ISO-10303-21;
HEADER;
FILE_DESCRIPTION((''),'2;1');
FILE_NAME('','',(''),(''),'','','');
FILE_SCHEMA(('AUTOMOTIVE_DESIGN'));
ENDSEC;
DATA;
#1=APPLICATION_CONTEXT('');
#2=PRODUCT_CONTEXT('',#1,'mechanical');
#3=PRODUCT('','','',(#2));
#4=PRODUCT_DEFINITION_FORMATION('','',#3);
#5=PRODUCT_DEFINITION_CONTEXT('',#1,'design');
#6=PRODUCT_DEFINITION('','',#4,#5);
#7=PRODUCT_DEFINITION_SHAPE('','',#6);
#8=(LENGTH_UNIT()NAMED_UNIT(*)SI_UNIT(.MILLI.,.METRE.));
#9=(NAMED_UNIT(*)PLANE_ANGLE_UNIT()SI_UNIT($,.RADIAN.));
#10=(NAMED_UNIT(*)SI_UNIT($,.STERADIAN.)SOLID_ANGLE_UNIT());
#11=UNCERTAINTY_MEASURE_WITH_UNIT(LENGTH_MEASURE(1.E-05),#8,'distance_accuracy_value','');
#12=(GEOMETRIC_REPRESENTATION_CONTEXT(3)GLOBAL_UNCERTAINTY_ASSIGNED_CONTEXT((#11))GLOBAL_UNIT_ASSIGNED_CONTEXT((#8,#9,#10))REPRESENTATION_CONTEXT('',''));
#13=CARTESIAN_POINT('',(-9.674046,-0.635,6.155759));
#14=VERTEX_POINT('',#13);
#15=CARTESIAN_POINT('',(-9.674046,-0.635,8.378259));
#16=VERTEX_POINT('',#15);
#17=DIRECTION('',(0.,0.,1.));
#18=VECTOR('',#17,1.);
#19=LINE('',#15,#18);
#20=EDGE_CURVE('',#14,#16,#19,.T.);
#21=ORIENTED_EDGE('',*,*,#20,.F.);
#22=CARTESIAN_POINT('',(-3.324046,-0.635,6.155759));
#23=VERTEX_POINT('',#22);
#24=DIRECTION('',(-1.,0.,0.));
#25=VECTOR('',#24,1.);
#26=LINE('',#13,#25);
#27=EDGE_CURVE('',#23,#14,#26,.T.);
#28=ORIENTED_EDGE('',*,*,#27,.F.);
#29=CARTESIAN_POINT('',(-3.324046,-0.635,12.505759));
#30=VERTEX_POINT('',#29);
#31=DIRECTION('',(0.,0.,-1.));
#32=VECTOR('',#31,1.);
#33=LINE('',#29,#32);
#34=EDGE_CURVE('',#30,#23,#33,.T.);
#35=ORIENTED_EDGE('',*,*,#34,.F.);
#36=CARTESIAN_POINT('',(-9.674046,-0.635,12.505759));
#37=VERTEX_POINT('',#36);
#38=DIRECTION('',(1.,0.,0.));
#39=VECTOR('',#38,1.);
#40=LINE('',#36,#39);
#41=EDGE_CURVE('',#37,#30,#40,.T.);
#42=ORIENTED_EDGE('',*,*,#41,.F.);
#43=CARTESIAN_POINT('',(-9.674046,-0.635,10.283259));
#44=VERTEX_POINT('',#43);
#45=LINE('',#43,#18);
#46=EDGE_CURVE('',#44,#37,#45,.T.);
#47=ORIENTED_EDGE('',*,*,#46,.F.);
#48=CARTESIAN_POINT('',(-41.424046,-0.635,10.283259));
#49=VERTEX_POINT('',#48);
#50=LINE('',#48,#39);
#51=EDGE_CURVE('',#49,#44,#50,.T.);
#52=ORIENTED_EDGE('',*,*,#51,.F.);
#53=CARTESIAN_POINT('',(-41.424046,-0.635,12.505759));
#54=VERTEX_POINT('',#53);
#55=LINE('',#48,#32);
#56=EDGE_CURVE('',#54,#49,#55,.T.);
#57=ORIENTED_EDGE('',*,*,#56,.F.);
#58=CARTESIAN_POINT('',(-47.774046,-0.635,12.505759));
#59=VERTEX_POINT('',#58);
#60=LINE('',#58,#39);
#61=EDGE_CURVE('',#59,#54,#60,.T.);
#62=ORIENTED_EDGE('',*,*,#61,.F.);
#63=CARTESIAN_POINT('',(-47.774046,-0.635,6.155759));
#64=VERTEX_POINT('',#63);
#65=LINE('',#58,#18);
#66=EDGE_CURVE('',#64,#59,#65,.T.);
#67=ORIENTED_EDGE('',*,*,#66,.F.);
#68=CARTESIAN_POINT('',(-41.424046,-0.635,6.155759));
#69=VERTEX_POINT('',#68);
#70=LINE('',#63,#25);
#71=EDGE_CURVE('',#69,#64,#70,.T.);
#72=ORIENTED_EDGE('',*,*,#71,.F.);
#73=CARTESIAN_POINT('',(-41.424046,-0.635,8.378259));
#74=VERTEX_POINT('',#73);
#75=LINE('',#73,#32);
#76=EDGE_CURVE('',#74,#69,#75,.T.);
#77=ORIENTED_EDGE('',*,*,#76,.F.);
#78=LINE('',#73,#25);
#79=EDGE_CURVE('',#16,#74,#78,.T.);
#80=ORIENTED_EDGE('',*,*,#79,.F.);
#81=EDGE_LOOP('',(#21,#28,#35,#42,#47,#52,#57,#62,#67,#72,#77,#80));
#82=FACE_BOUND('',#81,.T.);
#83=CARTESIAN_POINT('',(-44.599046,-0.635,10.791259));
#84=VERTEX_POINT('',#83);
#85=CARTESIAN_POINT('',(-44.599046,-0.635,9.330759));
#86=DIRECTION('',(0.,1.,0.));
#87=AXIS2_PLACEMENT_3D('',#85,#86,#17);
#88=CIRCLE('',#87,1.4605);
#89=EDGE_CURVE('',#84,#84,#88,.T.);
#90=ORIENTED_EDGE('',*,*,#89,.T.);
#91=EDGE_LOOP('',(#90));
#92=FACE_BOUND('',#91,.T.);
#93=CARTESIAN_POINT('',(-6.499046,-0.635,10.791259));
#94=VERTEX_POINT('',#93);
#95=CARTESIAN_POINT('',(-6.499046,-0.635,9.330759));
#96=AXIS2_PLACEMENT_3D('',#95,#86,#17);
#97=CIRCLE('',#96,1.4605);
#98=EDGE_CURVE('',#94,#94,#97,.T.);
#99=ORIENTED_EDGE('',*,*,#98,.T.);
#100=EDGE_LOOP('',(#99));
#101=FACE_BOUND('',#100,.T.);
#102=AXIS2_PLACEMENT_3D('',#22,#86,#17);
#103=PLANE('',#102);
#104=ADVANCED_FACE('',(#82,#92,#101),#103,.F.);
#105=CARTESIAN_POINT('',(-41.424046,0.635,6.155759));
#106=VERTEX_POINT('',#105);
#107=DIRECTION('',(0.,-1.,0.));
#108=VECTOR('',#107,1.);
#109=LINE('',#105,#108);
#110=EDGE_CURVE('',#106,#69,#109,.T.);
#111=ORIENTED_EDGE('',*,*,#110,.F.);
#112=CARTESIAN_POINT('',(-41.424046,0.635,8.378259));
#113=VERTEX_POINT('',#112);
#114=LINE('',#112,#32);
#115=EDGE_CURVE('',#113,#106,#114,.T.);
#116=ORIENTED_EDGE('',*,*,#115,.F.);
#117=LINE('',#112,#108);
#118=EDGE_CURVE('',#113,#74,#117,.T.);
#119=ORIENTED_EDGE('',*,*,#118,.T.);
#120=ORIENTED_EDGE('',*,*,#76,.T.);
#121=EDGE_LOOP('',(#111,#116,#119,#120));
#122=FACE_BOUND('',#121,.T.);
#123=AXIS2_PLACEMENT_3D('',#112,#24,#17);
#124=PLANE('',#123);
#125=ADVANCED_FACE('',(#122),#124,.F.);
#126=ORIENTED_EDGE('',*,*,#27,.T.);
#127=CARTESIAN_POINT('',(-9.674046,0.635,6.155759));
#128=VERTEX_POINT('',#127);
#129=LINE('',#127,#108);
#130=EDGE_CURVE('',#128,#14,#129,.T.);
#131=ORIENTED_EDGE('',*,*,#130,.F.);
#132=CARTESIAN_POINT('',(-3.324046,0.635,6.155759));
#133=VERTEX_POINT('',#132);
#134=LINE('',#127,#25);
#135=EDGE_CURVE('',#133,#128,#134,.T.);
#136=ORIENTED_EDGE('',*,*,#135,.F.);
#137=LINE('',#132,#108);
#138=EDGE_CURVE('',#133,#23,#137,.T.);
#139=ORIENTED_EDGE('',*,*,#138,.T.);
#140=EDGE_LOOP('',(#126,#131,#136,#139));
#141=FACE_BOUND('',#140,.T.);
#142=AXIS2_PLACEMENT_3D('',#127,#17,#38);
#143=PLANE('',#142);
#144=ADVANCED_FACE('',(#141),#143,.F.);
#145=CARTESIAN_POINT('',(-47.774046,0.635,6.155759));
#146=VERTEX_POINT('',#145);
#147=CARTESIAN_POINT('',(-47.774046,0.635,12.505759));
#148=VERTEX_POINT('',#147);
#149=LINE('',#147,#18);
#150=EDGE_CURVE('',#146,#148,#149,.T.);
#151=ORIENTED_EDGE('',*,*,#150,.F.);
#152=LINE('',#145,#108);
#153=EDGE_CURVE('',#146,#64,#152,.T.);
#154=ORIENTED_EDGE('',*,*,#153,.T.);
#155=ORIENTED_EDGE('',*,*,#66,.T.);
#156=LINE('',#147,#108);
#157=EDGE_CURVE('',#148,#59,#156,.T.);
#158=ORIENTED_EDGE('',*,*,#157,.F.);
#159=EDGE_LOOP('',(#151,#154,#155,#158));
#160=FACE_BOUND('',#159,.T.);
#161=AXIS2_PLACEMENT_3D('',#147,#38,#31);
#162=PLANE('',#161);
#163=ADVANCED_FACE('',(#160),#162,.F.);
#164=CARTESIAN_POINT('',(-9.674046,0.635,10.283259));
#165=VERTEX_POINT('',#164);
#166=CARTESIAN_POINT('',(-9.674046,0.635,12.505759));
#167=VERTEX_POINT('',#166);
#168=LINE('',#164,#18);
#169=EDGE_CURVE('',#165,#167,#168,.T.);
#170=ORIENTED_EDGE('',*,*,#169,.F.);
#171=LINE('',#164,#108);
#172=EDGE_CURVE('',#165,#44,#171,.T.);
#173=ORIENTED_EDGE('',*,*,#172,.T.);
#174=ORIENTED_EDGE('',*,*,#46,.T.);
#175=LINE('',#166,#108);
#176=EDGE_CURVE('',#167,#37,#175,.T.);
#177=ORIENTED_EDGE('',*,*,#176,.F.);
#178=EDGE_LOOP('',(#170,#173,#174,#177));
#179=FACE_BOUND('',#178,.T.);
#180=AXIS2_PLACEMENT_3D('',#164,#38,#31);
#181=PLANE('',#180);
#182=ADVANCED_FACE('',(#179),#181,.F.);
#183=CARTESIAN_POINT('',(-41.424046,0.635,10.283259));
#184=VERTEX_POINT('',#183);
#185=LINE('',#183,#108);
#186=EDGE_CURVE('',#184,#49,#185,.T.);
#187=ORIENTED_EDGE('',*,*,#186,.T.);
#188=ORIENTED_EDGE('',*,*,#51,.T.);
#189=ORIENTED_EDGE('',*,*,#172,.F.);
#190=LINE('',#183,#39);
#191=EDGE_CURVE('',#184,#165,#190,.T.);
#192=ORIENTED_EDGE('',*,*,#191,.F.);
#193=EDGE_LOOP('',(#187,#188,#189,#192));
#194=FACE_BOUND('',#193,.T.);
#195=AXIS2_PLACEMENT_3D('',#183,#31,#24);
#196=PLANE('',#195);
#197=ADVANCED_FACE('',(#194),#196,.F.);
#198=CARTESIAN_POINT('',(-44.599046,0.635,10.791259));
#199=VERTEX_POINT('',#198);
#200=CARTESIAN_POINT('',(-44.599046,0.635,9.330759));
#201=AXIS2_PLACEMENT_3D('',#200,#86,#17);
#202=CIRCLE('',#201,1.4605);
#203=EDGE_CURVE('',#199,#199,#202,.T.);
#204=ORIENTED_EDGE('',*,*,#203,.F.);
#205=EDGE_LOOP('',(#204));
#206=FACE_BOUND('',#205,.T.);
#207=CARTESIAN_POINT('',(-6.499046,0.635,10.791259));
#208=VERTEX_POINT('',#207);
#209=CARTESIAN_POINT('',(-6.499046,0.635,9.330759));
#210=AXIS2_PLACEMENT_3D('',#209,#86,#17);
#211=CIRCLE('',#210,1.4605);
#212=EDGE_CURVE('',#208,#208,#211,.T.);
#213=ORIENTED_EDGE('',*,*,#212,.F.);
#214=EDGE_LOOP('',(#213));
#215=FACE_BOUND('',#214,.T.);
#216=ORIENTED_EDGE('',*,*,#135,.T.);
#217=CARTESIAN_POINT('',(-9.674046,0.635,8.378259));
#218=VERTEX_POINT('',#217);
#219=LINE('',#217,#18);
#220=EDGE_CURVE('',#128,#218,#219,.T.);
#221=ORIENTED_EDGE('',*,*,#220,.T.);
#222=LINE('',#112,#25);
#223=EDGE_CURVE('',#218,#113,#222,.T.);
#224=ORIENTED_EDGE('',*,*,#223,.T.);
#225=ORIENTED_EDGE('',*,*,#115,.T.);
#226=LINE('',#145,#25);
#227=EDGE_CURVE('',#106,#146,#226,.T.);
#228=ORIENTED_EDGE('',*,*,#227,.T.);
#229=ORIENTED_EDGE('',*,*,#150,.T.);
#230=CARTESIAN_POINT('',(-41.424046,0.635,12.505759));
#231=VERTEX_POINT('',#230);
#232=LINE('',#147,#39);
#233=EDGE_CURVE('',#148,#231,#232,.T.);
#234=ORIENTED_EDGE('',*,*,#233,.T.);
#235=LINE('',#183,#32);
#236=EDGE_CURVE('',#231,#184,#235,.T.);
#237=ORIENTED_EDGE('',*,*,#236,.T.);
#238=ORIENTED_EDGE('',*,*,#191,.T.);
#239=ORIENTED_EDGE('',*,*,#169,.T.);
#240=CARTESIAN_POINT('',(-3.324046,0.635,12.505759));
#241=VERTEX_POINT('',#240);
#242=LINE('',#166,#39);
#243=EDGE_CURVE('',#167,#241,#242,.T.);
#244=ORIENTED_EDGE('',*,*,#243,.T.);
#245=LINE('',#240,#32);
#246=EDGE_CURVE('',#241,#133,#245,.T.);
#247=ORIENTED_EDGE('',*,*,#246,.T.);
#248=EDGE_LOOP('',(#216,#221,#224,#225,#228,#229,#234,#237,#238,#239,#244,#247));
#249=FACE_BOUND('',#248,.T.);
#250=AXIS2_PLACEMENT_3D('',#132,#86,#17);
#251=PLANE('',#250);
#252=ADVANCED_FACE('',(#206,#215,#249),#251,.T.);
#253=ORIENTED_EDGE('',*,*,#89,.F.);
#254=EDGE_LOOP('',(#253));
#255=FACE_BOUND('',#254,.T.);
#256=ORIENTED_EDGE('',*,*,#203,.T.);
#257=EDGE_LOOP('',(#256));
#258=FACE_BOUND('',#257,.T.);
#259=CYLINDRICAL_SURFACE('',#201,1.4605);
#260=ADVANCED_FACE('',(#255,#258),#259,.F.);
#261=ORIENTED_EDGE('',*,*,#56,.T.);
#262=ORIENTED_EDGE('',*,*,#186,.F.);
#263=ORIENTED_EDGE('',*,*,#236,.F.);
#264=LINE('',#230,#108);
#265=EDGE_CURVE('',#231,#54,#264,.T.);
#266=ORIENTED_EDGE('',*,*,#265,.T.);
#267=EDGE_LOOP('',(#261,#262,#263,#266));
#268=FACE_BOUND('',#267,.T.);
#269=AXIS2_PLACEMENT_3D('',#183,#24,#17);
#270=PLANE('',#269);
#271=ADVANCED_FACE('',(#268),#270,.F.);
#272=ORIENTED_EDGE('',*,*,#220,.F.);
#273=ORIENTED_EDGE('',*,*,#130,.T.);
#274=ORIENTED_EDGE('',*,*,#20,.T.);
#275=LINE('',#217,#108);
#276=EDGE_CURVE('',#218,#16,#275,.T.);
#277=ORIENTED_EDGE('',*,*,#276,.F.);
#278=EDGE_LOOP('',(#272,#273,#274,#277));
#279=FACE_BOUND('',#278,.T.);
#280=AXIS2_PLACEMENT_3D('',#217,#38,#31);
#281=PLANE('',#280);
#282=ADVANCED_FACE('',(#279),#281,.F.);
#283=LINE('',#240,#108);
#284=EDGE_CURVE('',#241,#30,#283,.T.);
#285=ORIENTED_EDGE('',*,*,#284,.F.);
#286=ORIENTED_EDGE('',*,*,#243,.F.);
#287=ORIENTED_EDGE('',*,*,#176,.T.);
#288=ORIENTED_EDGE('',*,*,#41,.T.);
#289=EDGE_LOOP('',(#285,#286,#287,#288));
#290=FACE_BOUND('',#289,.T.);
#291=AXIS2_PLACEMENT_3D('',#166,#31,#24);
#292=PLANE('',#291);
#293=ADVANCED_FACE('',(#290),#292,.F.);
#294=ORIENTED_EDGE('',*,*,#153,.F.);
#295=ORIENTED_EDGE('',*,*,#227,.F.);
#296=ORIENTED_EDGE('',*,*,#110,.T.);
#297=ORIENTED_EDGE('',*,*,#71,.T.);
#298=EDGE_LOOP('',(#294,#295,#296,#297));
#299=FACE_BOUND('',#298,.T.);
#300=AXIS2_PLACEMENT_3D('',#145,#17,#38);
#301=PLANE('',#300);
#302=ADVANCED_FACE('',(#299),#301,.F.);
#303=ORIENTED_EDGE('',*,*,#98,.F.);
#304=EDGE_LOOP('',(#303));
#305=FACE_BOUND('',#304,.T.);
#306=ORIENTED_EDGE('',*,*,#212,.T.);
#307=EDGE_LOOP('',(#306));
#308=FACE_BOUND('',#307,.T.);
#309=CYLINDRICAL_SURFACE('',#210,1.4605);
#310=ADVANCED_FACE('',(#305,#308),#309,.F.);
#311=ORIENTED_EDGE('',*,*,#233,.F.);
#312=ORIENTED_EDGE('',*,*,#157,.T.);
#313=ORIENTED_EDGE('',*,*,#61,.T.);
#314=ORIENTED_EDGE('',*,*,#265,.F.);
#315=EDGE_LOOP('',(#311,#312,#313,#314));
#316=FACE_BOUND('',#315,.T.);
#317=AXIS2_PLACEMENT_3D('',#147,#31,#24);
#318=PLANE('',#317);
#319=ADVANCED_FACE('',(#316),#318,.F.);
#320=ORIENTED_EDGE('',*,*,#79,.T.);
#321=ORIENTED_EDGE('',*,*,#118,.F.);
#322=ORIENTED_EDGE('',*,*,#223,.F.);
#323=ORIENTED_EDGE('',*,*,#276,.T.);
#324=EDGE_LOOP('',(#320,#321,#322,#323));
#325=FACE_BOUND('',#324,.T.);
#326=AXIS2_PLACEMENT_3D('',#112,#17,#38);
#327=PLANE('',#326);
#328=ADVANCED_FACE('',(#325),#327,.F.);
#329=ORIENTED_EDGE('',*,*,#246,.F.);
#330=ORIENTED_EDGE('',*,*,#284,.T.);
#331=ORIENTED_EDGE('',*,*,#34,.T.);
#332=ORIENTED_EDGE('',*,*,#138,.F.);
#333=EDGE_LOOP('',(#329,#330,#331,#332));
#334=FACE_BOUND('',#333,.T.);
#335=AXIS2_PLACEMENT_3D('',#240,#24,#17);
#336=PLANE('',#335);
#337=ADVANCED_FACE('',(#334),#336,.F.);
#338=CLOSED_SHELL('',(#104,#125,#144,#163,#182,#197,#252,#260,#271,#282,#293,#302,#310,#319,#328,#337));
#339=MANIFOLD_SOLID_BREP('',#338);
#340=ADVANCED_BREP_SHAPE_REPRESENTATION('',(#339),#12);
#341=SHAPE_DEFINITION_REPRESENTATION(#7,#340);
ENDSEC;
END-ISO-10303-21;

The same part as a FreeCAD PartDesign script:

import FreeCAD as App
import Part
import Sketcher
Q = App.Units.Quantity

doc = App.newDocument("Part")
params = doc.addObject("Spreadsheet::Sheet", "Params")
for row, (alias, value) in enumerate([
    ("sketch1_width", "1.25 in"),
    ("sketch1_width2", "0.25 in"),
    ("pad1_length", "0.05 in"),
    ("sketch2_diameter", "0.115 in"),
    ("hole_diameter", "0.115 in"),
], start=1):
    params.set(f"A{row}", alias)
    params.set(f"B{row}", "=" + value)
    params.setAlias(f"B{row}", alias)

body = doc.addObject("PartDesign::Body", "Body")

# Sketch on XZ plane
sketch1 = body.newObject("Sketcher::SketchObject", "Sketch")
sketch1.AttachmentSupport = (doc.getObject("XZ_Plane"), [""])
sketch1.MapMode = "FlatFace"
sketch1.addGeometry(Part.LineSegment(App.Vector(-41.4, 12.5, 0), App.Vector(-41.4, 10.3, 0)), False)
sketch1.addGeometry(Part.LineSegment(App.Vector(-41.4, 10.3, 0), App.Vector(-9.7, 10.3, 0)), False)
sketch1.addGeometry(Part.LineSegment(App.Vector(-9.7, 10.3, 0), App.Vector(-9.7, 12.5, 0)), False)
sketch1.addGeometry(Part.LineSegment(App.Vector(-9.7, 12.5, 0), App.Vector(-3.3, 12.5, 0)), False)
sketch1.addGeometry(Part.LineSegment(App.Vector(-3.3, 12.5, 0), App.Vector(-3.3, 6.2, 0)), False)
sketch1.addGeometry(Part.LineSegment(App.Vector(-3.3, 6.2, 0), App.Vector(-9.7, 6.2, 0)), False)
sketch1.addGeometry(Part.LineSegment(App.Vector(-9.7, 6.2, 0), App.Vector(-9.7, 8.4, 0)), False)
sketch1.addGeometry(Part.LineSegment(App.Vector(-9.7, 8.4, 0), App.Vector(-41.4, 8.4, 0)), False)
sketch1.addGeometry(Part.LineSegment(App.Vector(-41.4, 8.4, 0), App.Vector(-41.4, 6.2, 0)), False)
sketch1.addGeometry(Part.LineSegment(App.Vector(-41.4, 6.2, 0), App.Vector(-47.8, 6.2, 0)), False)
sketch1.addGeometry(Part.LineSegment(App.Vector(-47.8, 6.2, 0), App.Vector(-47.8, 12.5, 0)), False)
sketch1.addGeometry(Part.LineSegment(App.Vector(-47.8, 12.5, 0), App.Vector(-41.4, 12.5, 0)), False)
sketch1.addConstraint(Sketcher.Constraint("Coincident", 0, 2, 1, 1))
sketch1.addConstraint(Sketcher.Constraint("Coincident", 1, 2, 2, 1))
sketch1.addConstraint(Sketcher.Constraint("Coincident", 2, 2, 3, 1))
sketch1.addConstraint(Sketcher.Constraint("Coincident", 3, 2, 4, 1))
sketch1.addConstraint(Sketcher.Constraint("Coincident", 4, 2, 5, 1))
sketch1.addConstraint(Sketcher.Constraint("Coincident", 5, 2, 6, 1))
sketch1.addConstraint(Sketcher.Constraint("Coincident", 6, 2, 7, 1))
sketch1.addConstraint(Sketcher.Constraint("Coincident", 7, 2, 8, 1))
sketch1.addConstraint(Sketcher.Constraint("Coincident", 8, 2, 9, 1))
sketch1.addConstraint(Sketcher.Constraint("Coincident", 9, 2, 10, 1))
sketch1.addConstraint(Sketcher.Constraint("Coincident", 10, 2, 11, 1))
sketch1.addConstraint(Sketcher.Constraint("Coincident", 11, 2, 0, 1))
sketch1.addConstraint(Sketcher.Constraint("Vertical", 0))
sketch1.addConstraint(Sketcher.Constraint("Horizontal", 1))
sketch1.addConstraint(Sketcher.Constraint("Vertical", 2))
sketch1.addConstraint(Sketcher.Constraint("Horizontal", 3))
sketch1.addConstraint(Sketcher.Constraint("Vertical", 4))
sketch1.addConstraint(Sketcher.Constraint("Horizontal", 5))
sketch1.addConstraint(Sketcher.Constraint("Vertical", 6))
sketch1.addConstraint(Sketcher.Constraint("Horizontal", 7))
sketch1.addConstraint(Sketcher.Constraint("Vertical", 8))
sketch1.addConstraint(Sketcher.Constraint("Horizontal", 9))
sketch1.addConstraint(Sketcher.Constraint("Vertical", 10))
sketch1.addConstraint(Sketcher.Constraint("Horizontal", 11))
sketch1.addConstraint(Sketcher.Constraint("Horizontal", 5, 2, 8, 2))
sketch1.addConstraint(Sketcher.Constraint("Horizontal", 3, 2, 10, 2))
sketch1.addConstraint(Sketcher.Constraint("Vertical", 2, 2, 5, 2))
sketch1.addConstraint(Sketcher.Constraint("Vertical", 0, 2, 7, 2))
sketch1.addConstraint(Sketcher.Constraint("Equal", 5, 9))
sketch1.addConstraint(Sketcher.Constraint("Equal", 11, 4))
sketch1.addConstraint(Sketcher.Constraint("Equal", 2, 6))
sketch1.addConstraint(Sketcher.Constraint("DistanceX", 1, 1, 1, 2, Q("1.25 in")))
sketch1.addConstraint(Sketcher.Constraint("DistanceX", 3, 1, 3, 2, Q("0.25 in")))
sketch1.addConstraint(Sketcher.Constraint("DistanceY", 0, 2, 0, 1, Q("0.0875 in")))
sketch1.addConstraint(Sketcher.Constraint("DistanceY", -1, 1, 0, 2, 10.283259))
sketch1.addConstraint(Sketcher.Constraint("DistanceX", 0, 2, -1, 1, 41.424046))
sketch1.setExpression("Constraints[31]", "Params.sketch1_width")
sketch1.setExpression("Constraints[32]", "Params.sketch1_width2")
pad1 = body.newObject("PartDesign::Pad", "Pad")
pad1.Profile = sketch1
pad1.setExpression("Length", "Params.pad1_length")
pad1.Midplane = True

# Sketch on XZ plane
sketch2 = body.newObject("Sketcher::SketchObject", "Sketch001")
sketch2.AttachmentSupport = (doc.getObject("XZ_Plane"), [""])
sketch2.MapMode = "FlatFace"
sketch2.AttachmentOffset = App.Placement(App.Vector(0, 0, -0.025 * 25.4), App.Rotation())
sketch2.addGeometry(Part.Circle(App.Vector(-44.6, 9.3, 0), App.Vector(0, 0, 1), 1.5), False)
sketch2.addConstraint(Sketcher.Constraint("Diameter", 0, Q("0.115 in")))
sketch2.addConstraint(Sketcher.Constraint("DistanceY", -1, 1, 0, 3, 9.330759))
sketch2.addConstraint(Sketcher.Constraint("DistanceX", 0, 3, -1, 1, 44.599046))
sketch2.setExpression("Constraints[0]", "Params.sketch2_diameter")
doc.recompute()
hole = body.newObject("PartDesign::Hole", "Hole")
hole.Profile = sketch2
hole.ThreadType = "None"
hole.setExpression("Diameter", "Params.hole_diameter")
hole.DepthType = "ThroughAll"
hole.Reversed = True
doc.recompute()

datumplane = body.newObject("PartDesign::Plane", "DatumPlane")
datumplane.AttachmentSupport = (doc.getObject("YZ_Plane"), [""])
datumplane.MapMode = "FlatFace"
datumplane.AttachmentOffset = App.Placement(App.Vector(0, 0, -25.549046), App.Rotation())
mirrored = body.newObject("PartDesign::Mirrored", "Mirrored")
mirrored.Originals = [hole]
mirrored.MirrorPlane = (datumplane, [""])
body.Tip = mirrored

doc.recompute()
